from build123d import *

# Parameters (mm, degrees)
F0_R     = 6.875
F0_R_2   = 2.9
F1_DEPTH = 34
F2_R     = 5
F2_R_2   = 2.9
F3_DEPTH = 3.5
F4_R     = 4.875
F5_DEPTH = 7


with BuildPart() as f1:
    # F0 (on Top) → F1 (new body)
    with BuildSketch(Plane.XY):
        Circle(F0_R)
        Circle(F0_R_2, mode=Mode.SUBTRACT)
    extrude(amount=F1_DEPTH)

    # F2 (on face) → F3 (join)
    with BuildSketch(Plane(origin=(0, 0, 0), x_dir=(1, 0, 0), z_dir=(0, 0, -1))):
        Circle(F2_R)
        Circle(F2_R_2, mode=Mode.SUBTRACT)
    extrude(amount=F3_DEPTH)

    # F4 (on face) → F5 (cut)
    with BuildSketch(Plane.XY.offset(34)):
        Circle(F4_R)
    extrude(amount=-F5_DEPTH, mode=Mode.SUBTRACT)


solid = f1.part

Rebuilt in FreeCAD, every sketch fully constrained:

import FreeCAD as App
import Part
import Sketcher

doc = App.newDocument("Part")
body = doc.addObject("PartDesign::Body", "Body")

sketch1 = body.newObject("Sketcher::SketchObject", "Sketch")
sketch1.AttachmentSupport = (doc.getObject("XY_Plane"), [""])
sketch1.MapMode = "FlatFace"
sketch1.addGeometry(Part.Circle(App.Vector(0, 0, 0), App.Vector(0, 0, 1), 6.9), False)
sketch1.addGeometry(Part.Circle(App.Vector(0, 0, 0), App.Vector(0, 0, 1), 2.9), False)
sketch1.addConstraint(Sketcher.Constraint("Coincident", 0, 3, -1, 1))
sketch1.addConstraint(Sketcher.Constraint("Coincident", 1, 3, -1, 1))
sketch1.addConstraint(Sketcher.Constraint("Diameter", 1, 5.8))
sketch1.addConstraint(Sketcher.Constraint("Diameter", 0, 13.75))
pad1 = body.newObject("PartDesign::Pad", "Pad")
pad1.Profile = sketch1
pad1.Length = 34

sketch2 = body.newObject("Sketcher::SketchObject", "Sketch001")
sketch2.AttachmentSupport = (doc.getObject("XY_Plane"), [""])
sketch2.MapMode = "FlatFace"
sketch2.addGeometry(Part.Circle(App.Vector(0, 0, 0), App.Vector(0, 0, 1), 5), False)
sketch2.addGeometry(Part.Circle(App.Vector(0, 0, 0), App.Vector(0, 0, 1), 2.9), False)
sketch2.addConstraint(Sketcher.Constraint("Coincident", 0, 3, -1, 1))
sketch2.addConstraint(Sketcher.Constraint("Coincident", 1, 3, -1, 1))
sketch2.addConstraint(Sketcher.Constraint("Diameter", 0, 10.0))
sketch2.addConstraint(Sketcher.Constraint("Diameter", 1, 5.8))
pad2 = body.newObject("PartDesign::Pad", "Pad001")
pad2.Profile = sketch2
pad2.Length = 3.5
pad2.Reversed = True

sketch3 = body.newObject("Sketcher::SketchObject", "Sketch002")
sketch3.AttachmentSupport = (doc.getObject("XY_Plane"), [""])
sketch3.MapMode = "FlatFace"
sketch3.AttachmentOffset = App.Placement(App.Vector(0, 0, 34), App.Rotation())
sketch3.addGeometry(Part.Circle(App.Vector(0, 0, 0), App.Vector(0, 0, 1), 4.9), False)
sketch3.addConstraint(Sketcher.Constraint("Coincident", 0, 3, -1, 1))
sketch3.addConstraint(Sketcher.Constraint("Diameter", 0, 9.75))
pocket1 = body.newObject("PartDesign::Pocket", "Pocket")
pocket1.Profile = sketch3
pocket1.Length = 7

doc.recompute()
